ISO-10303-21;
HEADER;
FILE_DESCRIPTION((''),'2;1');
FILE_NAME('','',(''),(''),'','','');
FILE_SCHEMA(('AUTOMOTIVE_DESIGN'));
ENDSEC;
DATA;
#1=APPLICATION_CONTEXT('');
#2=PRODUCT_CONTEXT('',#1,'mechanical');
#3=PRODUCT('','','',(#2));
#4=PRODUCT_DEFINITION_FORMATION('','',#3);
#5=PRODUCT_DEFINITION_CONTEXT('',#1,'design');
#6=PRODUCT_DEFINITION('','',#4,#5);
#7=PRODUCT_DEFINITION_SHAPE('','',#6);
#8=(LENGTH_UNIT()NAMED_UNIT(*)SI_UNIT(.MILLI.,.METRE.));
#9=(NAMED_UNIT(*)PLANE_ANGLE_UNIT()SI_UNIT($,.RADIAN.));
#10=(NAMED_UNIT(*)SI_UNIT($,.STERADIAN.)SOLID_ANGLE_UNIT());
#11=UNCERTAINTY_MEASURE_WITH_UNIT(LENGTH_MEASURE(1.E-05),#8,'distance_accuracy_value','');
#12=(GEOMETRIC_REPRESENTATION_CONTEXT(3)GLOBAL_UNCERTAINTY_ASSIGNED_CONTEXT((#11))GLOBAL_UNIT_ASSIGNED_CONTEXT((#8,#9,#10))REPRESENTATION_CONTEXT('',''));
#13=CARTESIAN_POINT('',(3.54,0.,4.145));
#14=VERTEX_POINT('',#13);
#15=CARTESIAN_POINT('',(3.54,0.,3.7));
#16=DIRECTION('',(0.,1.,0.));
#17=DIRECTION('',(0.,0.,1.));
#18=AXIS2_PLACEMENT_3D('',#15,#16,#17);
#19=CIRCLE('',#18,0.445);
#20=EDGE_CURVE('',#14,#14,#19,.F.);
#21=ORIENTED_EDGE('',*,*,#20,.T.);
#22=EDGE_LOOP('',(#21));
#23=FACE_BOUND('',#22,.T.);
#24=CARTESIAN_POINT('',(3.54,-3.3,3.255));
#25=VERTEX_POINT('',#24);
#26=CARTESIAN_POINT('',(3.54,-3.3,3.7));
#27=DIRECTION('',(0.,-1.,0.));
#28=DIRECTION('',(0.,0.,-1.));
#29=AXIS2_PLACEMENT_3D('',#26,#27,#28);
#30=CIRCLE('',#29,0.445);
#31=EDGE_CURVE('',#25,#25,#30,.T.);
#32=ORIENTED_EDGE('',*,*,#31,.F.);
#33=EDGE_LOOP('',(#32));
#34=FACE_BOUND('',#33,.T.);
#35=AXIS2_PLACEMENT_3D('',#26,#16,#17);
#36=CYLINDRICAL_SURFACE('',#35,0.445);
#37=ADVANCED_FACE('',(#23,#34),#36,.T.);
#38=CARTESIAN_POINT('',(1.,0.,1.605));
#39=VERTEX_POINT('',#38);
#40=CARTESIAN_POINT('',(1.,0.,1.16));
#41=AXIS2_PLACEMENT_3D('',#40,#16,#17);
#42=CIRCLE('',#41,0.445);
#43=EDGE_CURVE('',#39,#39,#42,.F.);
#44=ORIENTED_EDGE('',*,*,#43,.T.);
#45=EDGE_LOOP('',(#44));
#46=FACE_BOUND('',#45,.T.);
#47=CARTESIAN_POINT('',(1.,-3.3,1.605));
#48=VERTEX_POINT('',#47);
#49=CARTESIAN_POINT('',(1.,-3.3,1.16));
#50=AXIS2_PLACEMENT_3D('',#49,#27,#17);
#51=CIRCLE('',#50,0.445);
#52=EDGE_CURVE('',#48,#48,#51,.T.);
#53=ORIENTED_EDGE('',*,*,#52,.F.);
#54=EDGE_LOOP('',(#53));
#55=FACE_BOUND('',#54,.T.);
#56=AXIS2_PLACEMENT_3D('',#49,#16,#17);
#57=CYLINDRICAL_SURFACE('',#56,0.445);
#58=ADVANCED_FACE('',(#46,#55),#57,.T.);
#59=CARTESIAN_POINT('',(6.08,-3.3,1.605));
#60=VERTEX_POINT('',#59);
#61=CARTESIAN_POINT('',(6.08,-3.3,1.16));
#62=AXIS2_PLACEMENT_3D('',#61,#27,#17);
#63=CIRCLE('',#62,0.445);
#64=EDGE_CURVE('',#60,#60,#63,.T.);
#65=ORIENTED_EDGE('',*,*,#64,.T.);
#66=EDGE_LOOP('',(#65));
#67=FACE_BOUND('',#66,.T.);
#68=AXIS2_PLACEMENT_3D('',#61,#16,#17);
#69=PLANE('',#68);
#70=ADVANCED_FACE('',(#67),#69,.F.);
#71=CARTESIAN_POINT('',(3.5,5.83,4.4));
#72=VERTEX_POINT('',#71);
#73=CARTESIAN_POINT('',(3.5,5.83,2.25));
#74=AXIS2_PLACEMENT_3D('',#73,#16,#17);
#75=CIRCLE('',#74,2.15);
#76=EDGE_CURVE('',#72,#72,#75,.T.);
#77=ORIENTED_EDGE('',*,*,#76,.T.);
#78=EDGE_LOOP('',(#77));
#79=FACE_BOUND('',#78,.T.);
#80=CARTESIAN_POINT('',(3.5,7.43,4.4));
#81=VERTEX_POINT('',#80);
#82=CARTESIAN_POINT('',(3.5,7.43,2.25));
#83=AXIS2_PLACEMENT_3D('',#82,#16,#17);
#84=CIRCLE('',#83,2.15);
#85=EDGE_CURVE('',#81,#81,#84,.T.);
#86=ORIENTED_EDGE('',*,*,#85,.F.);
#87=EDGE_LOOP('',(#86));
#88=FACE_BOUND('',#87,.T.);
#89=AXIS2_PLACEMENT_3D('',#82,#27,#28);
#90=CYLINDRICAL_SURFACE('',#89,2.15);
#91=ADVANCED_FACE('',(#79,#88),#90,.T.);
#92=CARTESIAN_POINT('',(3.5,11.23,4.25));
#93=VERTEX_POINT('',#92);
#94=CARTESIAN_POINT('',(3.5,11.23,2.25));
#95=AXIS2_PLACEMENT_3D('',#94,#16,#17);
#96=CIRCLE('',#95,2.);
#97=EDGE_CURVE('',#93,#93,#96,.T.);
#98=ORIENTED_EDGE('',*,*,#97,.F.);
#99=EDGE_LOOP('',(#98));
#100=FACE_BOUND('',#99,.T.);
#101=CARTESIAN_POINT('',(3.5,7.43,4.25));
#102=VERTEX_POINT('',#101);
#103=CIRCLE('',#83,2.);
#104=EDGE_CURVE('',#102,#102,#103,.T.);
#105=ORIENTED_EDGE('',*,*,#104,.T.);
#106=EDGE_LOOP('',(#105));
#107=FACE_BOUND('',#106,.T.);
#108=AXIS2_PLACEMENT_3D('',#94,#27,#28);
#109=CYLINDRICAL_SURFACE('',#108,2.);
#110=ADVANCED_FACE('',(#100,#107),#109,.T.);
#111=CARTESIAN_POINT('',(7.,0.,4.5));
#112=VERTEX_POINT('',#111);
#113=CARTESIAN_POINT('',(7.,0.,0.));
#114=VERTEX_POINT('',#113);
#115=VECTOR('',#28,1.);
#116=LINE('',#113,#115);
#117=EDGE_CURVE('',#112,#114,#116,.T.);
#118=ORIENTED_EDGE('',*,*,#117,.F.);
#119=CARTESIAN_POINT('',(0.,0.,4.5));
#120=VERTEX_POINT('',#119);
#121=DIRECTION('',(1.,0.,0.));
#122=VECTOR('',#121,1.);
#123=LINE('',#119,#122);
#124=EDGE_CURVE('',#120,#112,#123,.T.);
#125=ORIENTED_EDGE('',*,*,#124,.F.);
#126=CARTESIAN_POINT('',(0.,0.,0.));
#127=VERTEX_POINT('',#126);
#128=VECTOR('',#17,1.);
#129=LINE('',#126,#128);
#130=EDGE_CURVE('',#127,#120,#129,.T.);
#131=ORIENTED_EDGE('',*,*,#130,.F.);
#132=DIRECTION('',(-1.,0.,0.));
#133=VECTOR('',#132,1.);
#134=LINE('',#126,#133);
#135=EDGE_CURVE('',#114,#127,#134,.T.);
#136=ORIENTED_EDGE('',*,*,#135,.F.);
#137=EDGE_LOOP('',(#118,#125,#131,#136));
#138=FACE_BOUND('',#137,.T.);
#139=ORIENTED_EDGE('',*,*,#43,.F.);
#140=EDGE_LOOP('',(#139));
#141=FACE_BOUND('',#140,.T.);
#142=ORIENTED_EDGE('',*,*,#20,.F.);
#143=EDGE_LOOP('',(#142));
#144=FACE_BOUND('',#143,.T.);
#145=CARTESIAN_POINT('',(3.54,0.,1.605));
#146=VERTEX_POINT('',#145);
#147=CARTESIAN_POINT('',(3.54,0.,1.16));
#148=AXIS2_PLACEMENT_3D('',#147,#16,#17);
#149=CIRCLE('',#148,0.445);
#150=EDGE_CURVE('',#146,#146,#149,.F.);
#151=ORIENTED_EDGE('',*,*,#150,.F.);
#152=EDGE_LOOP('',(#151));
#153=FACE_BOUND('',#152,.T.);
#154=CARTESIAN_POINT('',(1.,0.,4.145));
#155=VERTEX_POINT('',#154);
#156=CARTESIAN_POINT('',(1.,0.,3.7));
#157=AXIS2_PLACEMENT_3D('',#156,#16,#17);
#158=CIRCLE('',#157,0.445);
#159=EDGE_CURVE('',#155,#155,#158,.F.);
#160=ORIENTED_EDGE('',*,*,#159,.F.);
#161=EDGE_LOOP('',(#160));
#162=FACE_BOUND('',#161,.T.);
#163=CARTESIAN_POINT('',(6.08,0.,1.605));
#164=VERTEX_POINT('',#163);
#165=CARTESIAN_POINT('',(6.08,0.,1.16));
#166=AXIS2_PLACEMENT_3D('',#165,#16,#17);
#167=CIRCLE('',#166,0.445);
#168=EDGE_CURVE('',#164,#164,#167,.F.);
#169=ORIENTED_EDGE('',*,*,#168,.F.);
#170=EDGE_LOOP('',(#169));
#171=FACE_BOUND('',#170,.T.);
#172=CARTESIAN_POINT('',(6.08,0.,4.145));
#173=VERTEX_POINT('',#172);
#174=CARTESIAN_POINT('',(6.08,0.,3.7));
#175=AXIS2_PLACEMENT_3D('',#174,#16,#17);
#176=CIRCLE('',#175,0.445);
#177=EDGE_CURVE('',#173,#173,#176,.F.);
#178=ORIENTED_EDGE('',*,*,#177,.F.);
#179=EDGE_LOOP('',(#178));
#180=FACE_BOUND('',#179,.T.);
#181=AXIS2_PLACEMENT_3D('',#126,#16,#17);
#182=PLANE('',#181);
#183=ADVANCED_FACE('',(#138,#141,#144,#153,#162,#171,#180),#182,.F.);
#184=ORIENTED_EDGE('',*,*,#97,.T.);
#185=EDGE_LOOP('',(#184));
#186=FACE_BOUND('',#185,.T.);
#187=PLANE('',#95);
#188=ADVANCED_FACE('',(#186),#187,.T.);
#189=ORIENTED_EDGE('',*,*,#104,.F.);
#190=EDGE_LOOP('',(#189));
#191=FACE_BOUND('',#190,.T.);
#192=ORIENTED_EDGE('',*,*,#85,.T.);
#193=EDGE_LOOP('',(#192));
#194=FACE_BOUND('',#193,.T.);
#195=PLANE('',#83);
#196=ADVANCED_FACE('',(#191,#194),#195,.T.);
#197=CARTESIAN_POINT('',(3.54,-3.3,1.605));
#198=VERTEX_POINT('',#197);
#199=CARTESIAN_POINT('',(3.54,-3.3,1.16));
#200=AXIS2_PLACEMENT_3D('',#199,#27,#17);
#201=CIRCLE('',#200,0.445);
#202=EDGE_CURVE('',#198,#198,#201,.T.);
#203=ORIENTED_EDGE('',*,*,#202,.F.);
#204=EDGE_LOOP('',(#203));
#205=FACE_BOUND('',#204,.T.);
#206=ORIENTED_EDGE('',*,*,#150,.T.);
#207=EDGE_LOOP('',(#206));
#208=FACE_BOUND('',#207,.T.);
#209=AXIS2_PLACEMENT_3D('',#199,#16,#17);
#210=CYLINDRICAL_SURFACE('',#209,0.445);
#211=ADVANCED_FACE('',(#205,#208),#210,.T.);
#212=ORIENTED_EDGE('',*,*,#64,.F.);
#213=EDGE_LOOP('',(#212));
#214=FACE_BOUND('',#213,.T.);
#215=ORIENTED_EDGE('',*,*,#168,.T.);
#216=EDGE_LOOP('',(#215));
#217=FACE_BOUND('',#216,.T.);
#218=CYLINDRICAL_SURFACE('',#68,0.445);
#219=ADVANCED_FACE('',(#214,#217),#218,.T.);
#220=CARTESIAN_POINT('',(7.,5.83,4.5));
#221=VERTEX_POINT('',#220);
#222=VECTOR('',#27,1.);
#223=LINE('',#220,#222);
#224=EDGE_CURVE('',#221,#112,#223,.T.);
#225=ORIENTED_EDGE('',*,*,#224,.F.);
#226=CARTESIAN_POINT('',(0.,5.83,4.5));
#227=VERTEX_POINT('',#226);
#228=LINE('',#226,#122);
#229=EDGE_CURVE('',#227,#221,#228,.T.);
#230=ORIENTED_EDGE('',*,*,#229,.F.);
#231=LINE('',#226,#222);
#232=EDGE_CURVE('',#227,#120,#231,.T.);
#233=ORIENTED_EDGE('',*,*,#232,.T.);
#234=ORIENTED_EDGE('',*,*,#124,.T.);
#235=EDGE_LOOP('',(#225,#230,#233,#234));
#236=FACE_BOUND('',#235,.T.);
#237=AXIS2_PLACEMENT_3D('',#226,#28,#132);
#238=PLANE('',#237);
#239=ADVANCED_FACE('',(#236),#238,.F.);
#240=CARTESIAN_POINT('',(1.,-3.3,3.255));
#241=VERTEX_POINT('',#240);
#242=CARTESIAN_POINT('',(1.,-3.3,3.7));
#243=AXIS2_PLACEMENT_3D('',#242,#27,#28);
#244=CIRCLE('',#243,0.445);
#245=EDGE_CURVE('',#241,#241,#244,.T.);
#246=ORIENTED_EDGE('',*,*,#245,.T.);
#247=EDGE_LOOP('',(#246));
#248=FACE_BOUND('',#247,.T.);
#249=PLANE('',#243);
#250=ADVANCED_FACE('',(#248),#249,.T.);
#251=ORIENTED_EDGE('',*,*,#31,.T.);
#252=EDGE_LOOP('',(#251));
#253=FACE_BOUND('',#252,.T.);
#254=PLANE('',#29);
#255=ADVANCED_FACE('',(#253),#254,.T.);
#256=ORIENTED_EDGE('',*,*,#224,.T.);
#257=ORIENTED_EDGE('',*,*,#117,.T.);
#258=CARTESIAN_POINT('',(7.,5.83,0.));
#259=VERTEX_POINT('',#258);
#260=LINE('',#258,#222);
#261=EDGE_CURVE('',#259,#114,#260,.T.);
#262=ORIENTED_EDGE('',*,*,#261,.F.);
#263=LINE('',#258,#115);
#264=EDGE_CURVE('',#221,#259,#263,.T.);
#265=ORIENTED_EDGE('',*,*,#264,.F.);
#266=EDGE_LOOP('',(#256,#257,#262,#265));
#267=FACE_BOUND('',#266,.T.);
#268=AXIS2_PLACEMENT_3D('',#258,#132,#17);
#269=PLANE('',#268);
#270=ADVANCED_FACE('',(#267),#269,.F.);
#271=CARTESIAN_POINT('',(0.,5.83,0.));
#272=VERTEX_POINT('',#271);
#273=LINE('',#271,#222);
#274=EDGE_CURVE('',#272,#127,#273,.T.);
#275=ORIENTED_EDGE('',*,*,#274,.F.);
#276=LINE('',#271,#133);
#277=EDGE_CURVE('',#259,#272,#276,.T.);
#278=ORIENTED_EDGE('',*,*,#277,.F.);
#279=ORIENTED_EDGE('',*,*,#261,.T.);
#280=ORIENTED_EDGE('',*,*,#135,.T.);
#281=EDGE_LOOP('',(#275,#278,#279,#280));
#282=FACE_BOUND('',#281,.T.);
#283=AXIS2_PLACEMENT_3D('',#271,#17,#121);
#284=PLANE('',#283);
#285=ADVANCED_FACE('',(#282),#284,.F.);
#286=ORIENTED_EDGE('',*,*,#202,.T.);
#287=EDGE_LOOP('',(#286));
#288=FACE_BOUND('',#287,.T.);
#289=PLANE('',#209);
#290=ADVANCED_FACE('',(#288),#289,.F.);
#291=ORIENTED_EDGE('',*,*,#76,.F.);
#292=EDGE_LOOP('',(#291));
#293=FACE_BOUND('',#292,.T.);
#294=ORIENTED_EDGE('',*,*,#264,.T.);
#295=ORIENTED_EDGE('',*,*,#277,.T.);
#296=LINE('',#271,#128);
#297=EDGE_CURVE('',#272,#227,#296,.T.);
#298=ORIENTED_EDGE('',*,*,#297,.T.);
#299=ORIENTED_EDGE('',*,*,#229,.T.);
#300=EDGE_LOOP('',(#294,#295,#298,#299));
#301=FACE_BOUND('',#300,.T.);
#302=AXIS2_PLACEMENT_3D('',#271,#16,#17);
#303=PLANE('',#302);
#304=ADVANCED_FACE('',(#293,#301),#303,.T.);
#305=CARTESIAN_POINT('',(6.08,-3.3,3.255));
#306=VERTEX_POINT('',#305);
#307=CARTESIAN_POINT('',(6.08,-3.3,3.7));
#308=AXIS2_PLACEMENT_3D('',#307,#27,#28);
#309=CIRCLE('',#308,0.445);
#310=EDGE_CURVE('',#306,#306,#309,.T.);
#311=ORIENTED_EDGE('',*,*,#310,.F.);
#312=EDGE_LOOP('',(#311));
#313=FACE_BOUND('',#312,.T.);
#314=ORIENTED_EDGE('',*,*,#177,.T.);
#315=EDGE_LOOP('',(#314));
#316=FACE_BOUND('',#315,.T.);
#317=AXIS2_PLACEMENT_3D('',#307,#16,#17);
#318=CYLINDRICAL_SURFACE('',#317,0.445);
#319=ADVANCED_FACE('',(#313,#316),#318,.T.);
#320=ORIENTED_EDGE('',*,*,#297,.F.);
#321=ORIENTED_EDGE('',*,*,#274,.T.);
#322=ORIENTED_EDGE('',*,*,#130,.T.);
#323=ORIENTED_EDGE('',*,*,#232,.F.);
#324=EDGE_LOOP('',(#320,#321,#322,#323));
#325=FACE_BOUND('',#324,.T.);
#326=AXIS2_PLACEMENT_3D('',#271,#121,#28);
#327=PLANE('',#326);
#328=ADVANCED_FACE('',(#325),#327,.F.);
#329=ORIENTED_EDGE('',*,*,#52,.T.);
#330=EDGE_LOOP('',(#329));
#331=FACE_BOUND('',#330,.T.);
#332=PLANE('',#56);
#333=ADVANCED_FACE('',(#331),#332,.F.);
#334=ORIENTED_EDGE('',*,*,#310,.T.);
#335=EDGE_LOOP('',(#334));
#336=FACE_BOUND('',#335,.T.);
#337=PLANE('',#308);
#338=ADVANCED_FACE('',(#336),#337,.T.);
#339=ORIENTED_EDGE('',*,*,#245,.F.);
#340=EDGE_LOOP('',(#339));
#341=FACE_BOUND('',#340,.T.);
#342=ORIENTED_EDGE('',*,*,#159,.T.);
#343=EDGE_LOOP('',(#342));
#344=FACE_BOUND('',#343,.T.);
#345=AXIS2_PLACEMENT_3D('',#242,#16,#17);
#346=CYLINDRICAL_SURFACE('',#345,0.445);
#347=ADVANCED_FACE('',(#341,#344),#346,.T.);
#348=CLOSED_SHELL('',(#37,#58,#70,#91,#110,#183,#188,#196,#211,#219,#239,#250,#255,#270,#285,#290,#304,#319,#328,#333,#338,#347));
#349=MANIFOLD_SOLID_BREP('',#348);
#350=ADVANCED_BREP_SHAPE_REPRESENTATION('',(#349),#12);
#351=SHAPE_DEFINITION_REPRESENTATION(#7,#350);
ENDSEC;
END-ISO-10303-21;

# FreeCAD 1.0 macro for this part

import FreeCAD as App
import Part
import Sketcher

V = App.Vector
Q = App.Units.Quantity

doc = App.newDocument("Part")
params = doc.addObject("Spreadsheet::Sheet", "Params")
for row, (alias, value) in enumerate([
    ("sketch1_width", "7 mm"),
    ("sketch1_height", "4.5 mm"),
    ("pad1_length", "5.83 mm"),
    ("sketch2_diameter", "4.3 mm"),
    ("pad2_length", "1.6 mm"),
    ("sketch3_diameter", "4 mm"),
    ("pad3_length", "3.8 mm"),
    ("sketch4_diameter", "0.89 mm"),
    ("pad4_length", "3.3 mm"),
], start=1):
    params.set(f"A{row}", alias)
    params.set(f"B{row}", "=" + value)
    params.setAlias(f"B{row}", alias)

body = doc.addObject("PartDesign::Body", "Body")

sketch1 = body.newObject("Sketcher::SketchObject", "Sketch")
sketch1.AttachmentSupport = (doc.getObject("XZ_Plane"), [""])
sketch1.MapMode = "FlatFace"
sketch1.addGeometry(Part.LineSegment(V(0, 0, 0), V(0, 4.5, 0)), False)
sketch1.addGeometry(Part.LineSegment(V(0, 4.5, 0), V(7, 4.5, 0)), False)
sketch1.addGeometry(Part.LineSegment(V(7, 4.5, 0), V(7, 0, 0)), False)
sketch1.addGeometry(Part.LineSegment(V(7, 0, 0), V(0, 0, 0)), False)
sketch1.addConstraint(Sketcher.Constraint("Coincident", 0, 2, 1, 1))
sketch1.addConstraint(Sketcher.Constraint("Coincident", 1, 2, 2, 1))
sketch1.addConstraint(Sketcher.Constraint("Coincident", 2, 2, 3, 1))
sketch1.addConstraint(Sketcher.Constraint("Coincident", 3, 2, 0, 1))
sketch1.addConstraint(Sketcher.Constraint("Vertical", 0))
sketch1.addConstraint(Sketcher.Constraint("Horizontal", 1))
sketch1.addConstraint(Sketcher.Constraint("Vertical", 2))
sketch1.addConstraint(Sketcher.Constraint("Horizontal", 3))
sketch1.addConstraint(Sketcher.Constraint("Coincident", 3, 2, -1, 1))
sketch1.addConstraint(Sketcher.Constraint("DistanceX", 1, 1, 1, 2, Q("7 mm")))
sketch1.addConstraint(Sketcher.Constraint("DistanceY", 0, 1, 0, 2, Q("4.5 mm")))
sketch1.setExpression("Constraints[9]", "Params.sketch1_width")
sketch1.setExpression("Constraints[10]", "Params.sketch1_height")
pad1 = body.newObject("PartDesign::Pad", "Pad")
pad1.Profile = sketch1
pad1.setExpression("Length", "Params.pad1_length")
pad1.Reversed = True

sketch2 = body.newObject("Sketcher::SketchObject", "Sketch001")
sketch2.AttachmentSupport = (doc.getObject("XZ_Plane"), [""])
sketch2.MapMode = "FlatFace"
sketch2.AttachmentOffset = App.Placement(V(0, 0, -5.83), App.Rotation())
sketch2.addGeometry(Part.Circle(V(3.5, 2.2, 0), V(0, 0, 1), 2.1), False)
sketch2.addConstraint(Sketcher.Constraint("Diameter", 0, Q("4.3 mm")))
sketch2.addConstraint(Sketcher.Constraint("DistanceX", -1, 1, 0, 3, Q("3.5 mm")))
sketch2.addConstraint(Sketcher.Constraint("DistanceY", -1, 1, 0, 3, Q("2.25 mm")))
sketch2.setExpression("Constraints[0]", "Params.sketch2_diameter")
pad2 = body.newObject("PartDesign::Pad", "Pad001")
pad2.Profile = sketch2
pad2.setExpression("Length", "Params.pad2_length")
pad2.Reversed = True

sketch3 = body.newObject("Sketcher::SketchObject", "Sketch002")
sketch3.AttachmentSupport = (doc.getObject("XZ_Plane"), [""])
sketch3.MapMode = "FlatFace"
sketch3.AttachmentOffset = App.Placement(V(0, 0, -7.43), App.Rotation())
sketch3.addGeometry(Part.Circle(V(3.5, 2.2, 0), V(0, 0, 1), 2), False)
sketch3.addConstraint(Sketcher.Constraint("Diameter", 0, Q("4 mm")))
sketch3.addConstraint(Sketcher.Constraint("DistanceX", -1, 1, 0, 3, Q("3.5 mm")))
sketch3.addConstraint(Sketcher.Constraint("DistanceY", -1, 1, 0, 3, Q("2.25 mm")))
sketch3.setExpression("Constraints[0]", "Params.sketch3_diameter")
pad3 = body.newObject("PartDesign::Pad", "Pad002")
pad3.Profile = sketch3
pad3.setExpression("Length", "Params.pad3_length")
pad3.Reversed = True

sketch4 = body.newObject("Sketcher::SketchObject", "Sketch003")
sketch4.AttachmentSupport = (doc.getObject("XZ_Plane"), [""])
sketch4.MapMode = "FlatFace"
sketch4.addGeometry(Part.Circle(V(1, 3.7, 0), V(0, 0, 1), 0.45), False)
sketch4.addGeometry(Part.Circle(V(3.54, 3.7, 0), V(0, 0, 1), 0.45), False)
sketch4.addGeometry(Part.Circle(V(6.08, 3.7, 0), V(0, 0, 1), 0.45), False)
sketch4.addGeometry(Part.Circle(V(6.08, 1.16, 0), V(0, 0, 1), 0.45), False)
sketch4.addGeometry(Part.Circle(V(3.54, 1.16, 0), V(0, 0, 1), 0.45), False)
sketch4.addGeometry(Part.Circle(V(1, 1.16, 0), V(0, 0, 1), 0.45), False)
sketch4.addConstraint(Sketcher.Constraint("Equal", 0, 1))
sketch4.addConstraint(Sketcher.Constraint("Equal", 1, 2))
sketch4.addConstraint(Sketcher.Constraint("Equal", 2, 3))
sketch4.addConstraint(Sketcher.Constraint("Equal", 3, 4))
sketch4.addConstraint(Sketcher.Constraint("Equal", 4, 5))
sketch4.addConstraint(Sketcher.Constraint("Horizontal", 0, 3, 1, 3))
sketch4.addConstraint(Sketcher.Constraint("Horizontal", 1, 3, 2, 3))
sketch4.addConstraint(Sketcher.Constraint("Horizontal", 3, 3, 4, 3))
sketch4.addConstraint(Sketcher.Constraint("Horizontal", 4, 3, 5, 3))
sketch4.addConstraint(Sketcher.Constraint("Vertical", 2, 3, 3, 3))
sketch4.addConstraint(Sketcher.Constraint("Vertical", 1, 3, 4, 3))
sketch4.addConstraint(Sketcher.Constraint("Vertical", 0, 3, 5, 3))
sketch4.addConstraint(Sketcher.Constraint("Diameter", 0, Q("0.89 mm")))
sketch4.addConstraint(Sketcher.Constraint("DistanceX", -1, 1, 0, 3, Q("1 mm")))
sketch4.addConstraint(Sketcher.Constraint("DistanceY", -1, 1, 0, 3, Q("3.7 mm")))
sketch4.addConstraint(Sketcher.Constraint("DistanceX", -1, 1, 1, 3, Q("3.54 mm")))
sketch4.addConstraint(Sketcher.Constraint("DistanceX", -1, 1, 2, 3, Q("6.08 mm")))
sketch4.addConstraint(Sketcher.Constraint("DistanceY", -1, 1, 3, 3, Q("1.16 mm")))
sketch4.setExpression("Constraints[12]", "Params.sketch4_diameter")
pad4 = body.newObject("PartDesign::Pad", "Pad003")
pad4.Profile = sketch4
pad4.setExpression("Length", "Params.pad4_length")

doc.recompute()
